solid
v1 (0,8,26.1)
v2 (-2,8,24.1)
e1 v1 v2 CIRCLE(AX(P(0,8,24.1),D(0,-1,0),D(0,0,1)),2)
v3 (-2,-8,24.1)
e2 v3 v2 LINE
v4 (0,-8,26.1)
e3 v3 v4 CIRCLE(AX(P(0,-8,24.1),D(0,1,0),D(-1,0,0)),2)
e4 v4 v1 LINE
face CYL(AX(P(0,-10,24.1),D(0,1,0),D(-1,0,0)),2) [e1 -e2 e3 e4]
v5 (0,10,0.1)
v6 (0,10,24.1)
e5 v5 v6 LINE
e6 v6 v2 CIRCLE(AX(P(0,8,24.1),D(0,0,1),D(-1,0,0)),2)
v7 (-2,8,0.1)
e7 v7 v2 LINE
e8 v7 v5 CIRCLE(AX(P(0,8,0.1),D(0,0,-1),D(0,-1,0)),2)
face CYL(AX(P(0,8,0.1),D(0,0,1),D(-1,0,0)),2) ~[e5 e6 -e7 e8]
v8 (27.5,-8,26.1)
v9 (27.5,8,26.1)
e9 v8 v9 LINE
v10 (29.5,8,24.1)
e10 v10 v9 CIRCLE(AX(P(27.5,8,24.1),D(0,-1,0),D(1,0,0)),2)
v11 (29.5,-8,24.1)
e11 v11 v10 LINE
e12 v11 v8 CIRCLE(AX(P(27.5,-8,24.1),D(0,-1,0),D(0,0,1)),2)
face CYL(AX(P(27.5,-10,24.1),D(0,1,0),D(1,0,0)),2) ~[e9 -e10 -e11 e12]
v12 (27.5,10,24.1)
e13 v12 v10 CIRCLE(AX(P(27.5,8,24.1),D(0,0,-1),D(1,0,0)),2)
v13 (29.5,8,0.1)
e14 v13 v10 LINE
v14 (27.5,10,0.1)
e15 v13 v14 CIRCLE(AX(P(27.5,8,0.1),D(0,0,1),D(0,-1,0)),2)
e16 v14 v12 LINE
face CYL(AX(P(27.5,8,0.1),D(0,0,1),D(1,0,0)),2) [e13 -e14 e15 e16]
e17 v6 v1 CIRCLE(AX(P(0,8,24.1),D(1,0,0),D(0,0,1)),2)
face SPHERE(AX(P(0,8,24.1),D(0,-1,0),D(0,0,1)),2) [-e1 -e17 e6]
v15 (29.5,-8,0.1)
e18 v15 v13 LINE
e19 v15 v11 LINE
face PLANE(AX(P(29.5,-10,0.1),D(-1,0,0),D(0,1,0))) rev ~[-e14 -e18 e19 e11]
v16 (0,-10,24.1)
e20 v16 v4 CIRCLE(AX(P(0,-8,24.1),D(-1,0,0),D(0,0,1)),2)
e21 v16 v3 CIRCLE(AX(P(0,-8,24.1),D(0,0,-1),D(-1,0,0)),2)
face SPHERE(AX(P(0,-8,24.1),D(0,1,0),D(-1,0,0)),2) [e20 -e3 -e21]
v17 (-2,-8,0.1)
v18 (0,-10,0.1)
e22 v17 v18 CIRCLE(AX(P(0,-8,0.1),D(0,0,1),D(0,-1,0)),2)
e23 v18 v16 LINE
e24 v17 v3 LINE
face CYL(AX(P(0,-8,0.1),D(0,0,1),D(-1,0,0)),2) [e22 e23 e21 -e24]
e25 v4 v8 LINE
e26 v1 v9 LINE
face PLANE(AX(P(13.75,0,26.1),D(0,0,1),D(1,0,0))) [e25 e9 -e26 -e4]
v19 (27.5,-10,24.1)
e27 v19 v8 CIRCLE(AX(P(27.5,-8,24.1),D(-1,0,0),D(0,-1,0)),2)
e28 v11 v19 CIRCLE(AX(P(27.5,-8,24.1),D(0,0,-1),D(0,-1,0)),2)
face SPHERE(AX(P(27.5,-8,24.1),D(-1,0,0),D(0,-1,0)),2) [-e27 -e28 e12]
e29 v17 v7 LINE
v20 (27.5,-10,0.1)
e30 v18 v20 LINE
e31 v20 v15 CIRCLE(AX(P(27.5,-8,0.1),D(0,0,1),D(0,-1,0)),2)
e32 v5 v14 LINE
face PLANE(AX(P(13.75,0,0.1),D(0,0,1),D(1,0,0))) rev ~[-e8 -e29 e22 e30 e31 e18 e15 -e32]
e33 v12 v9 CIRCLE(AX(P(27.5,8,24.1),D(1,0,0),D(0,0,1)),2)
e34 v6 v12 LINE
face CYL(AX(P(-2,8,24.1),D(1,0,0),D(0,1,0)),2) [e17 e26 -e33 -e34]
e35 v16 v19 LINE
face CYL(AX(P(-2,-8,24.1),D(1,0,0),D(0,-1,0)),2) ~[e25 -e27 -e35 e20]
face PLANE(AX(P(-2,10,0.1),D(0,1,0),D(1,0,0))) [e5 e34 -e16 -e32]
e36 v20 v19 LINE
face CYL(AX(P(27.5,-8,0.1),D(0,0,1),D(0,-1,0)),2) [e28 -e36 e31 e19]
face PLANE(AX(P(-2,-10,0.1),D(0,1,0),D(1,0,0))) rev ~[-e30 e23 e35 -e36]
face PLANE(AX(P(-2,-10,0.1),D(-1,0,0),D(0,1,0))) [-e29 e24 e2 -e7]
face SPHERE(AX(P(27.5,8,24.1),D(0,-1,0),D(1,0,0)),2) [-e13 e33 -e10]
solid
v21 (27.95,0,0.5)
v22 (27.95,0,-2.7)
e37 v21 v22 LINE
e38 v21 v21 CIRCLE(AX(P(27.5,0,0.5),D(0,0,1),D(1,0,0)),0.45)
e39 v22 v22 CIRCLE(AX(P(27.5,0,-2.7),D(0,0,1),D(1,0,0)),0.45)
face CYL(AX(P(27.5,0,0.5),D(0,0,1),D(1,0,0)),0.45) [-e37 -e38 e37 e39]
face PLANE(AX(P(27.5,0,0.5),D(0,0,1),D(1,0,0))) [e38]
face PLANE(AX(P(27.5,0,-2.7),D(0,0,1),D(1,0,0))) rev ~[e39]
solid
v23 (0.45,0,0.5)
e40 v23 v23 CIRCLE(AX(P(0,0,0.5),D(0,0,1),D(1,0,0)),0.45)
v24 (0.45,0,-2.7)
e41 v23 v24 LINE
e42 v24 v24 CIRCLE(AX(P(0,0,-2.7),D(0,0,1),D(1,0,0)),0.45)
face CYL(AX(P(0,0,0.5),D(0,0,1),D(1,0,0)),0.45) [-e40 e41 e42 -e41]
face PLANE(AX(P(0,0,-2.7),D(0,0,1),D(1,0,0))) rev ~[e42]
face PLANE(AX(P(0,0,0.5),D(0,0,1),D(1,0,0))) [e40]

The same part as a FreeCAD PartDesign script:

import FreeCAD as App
import Part
import Sketcher
from FreeCAD import Vector


def edges_at(feature, points):
    """Names of the edges that pass closest to the given points."""
    edges = feature.Shape.Edges
    near = lambda p: min(range(len(edges)), key=lambda i: edges[i].distToShape(Part.Vertex(*p))[0])
    return sorted({f"Edge{near(p) + 1}" for p in points})

doc = App.newDocument("Part")
body = doc.addObject("PartDesign::Body", "Body")

sketch1 = body.newObject("Sketcher::SketchObject", "Sketch")
sketch1.AttachmentSupport = (doc.getObject("XY_Plane"), [""])
sketch1.MapMode = "FlatFace"
sketch1.AttachmentOffset = App.Placement(Vector(0, 0, 0.1), App.Rotation())
sketch1.addGeometry([
    Part.LineSegment(Vector(-2, 10, 0), Vector(-2, -10, 0)),
    Part.LineSegment(Vector(-2, -10, 0), Vector(30, -10, 0)),
    Part.LineSegment(Vector(30, -10, 0), Vector(30, 10, 0)),
    Part.LineSegment(Vector(30, 10, 0), Vector(-2, 10, 0)),
], False)
sketch1.addConstraint([
    Sketcher.Constraint("Coincident", 0, 2, 1, 1),
    Sketcher.Constraint("Coincident", 1, 2, 2, 1),
    Sketcher.Constraint("Coincident", 2, 2, 3, 1),
    Sketcher.Constraint("Coincident", 3, 2, 0, 1),
    Sketcher.Constraint("Vertical", 0),
    Sketcher.Constraint("Horizontal", 1),
    Sketcher.Constraint("Vertical", 2),
    Sketcher.Constraint("Horizontal", 3),
    Sketcher.Constraint("DistanceY", 0, 2, 0, 1, 20.0),
    Sketcher.Constraint("DistanceX", 1, 1, 1, 2, 31.5),
    Sketcher.Constraint("DistanceX", 0, 2, -1, 1, 2.0),
    Sketcher.Constraint("DistanceY", 0, 2, -1, 1, 10.0),
])
pad1 = body.newObject("PartDesign::Pad", "Pad")
pad1.Profile = sketch1
pad1.Length = 26
doc.recompute()

fillet = body.newObject("PartDesign::Fillet", "Fillet")
fillet.Base = (pad1, edges_at(pad1, [
    (-2, 0, 26.1),
    (-2, -10, 13.1),
    (13.75, -10, 26.1),
    (29.5, -10, 13.1),
    (29.5, 0, 26.1),
    (29.5, 10, 13.1),
    (13.75, 10, 26.1),
    (-2, 10, 13.1),
]))
fillet.Radius = 2
body2 = doc.addObject("PartDesign::Body", "Body001")
body2.AllowCompound = True

sketch2 = body2.newObject("Sketcher::SketchObject", "Sketch001")
sketch2.AttachmentSupport = (doc.getObject("XY_Plane001"), [""])
sketch2.MapMode = "FlatFace"
sketch2.AttachmentOffset = App.Placement(Vector(0, 0, 0.5), App.Rotation())
sketch2.addGeometry([
    Part.Circle(Vector(0, 0, 0), Vector(0, 0, 1), 0.45),
    Part.Circle(Vector(27.5, 0, 0), Vector(0, 0, 1), 0.45),
], False)
sketch2.addConstraint([
    Sketcher.Constraint("Coincident", 0, 3, -1, 1),
    Sketcher.Constraint("Equal", 0, 1),
    Sketcher.Constraint("PointOnObject", 1, 3, -1),
    Sketcher.Constraint("Diameter", 0, 0.9),
    Sketcher.Constraint("DistanceX", -1, 1, 1, 3, 27.5),
])
pad2 = body2.newObject("PartDesign::Pad", "Pad001")
pad2.Profile = sketch2
pad2.Length = 3.2
pad2.Reversed = True

doc.recompute()
